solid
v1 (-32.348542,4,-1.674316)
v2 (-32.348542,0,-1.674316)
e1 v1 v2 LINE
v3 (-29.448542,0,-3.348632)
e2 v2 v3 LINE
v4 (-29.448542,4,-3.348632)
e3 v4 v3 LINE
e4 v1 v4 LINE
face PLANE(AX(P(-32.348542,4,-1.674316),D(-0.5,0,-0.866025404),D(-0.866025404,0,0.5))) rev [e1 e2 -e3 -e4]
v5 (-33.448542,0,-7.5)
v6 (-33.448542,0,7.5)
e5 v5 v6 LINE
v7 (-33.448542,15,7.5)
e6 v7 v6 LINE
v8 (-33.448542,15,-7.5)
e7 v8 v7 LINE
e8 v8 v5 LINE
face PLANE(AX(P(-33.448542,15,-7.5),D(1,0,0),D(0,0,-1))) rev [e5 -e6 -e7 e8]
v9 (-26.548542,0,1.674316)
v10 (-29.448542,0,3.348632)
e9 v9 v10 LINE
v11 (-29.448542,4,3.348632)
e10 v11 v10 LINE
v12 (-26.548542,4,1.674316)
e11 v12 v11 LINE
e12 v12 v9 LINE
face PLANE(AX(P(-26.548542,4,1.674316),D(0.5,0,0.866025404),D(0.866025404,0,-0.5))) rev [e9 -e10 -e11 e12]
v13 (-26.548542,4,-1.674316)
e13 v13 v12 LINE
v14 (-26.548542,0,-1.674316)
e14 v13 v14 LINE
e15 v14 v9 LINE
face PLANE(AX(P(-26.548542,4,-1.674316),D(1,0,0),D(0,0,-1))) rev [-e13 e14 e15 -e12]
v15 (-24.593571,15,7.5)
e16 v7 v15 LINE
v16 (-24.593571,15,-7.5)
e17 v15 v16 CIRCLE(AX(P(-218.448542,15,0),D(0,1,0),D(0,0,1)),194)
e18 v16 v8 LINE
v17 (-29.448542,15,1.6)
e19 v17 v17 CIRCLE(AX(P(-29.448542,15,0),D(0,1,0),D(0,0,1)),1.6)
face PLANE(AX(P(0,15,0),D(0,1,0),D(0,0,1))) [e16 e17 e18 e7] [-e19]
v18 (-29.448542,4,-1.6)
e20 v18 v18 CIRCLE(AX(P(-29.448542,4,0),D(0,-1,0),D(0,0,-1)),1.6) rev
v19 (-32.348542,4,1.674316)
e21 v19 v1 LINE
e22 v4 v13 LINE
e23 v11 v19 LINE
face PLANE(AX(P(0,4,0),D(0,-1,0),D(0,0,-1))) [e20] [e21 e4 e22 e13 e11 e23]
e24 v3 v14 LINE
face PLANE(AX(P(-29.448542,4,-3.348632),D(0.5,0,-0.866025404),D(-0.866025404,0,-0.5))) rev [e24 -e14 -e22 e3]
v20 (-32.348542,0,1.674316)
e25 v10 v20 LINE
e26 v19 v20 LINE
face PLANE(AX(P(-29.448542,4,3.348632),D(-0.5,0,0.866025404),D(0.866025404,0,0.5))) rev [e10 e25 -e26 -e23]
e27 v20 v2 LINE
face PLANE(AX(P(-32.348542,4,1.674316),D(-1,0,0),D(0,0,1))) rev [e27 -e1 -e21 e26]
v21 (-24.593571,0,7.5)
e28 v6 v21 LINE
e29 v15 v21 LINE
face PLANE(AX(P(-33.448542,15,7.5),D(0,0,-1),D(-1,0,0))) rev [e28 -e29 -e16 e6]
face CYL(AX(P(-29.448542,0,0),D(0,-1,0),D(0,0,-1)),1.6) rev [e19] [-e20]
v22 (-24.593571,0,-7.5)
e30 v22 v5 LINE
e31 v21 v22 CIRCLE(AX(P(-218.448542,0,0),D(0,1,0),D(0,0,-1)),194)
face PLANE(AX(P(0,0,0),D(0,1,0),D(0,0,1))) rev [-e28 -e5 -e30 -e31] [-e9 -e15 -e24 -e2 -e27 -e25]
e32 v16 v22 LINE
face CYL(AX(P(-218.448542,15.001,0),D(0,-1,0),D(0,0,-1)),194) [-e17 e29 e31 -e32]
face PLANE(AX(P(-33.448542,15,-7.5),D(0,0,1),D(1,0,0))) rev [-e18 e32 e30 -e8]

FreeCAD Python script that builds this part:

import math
import FreeCAD as App
import Part
import Sketcher
Q = App.Units.Quantity

doc = App.newDocument("Part")
params = doc.addObject("Spreadsheet::Sheet", "Params")
for row, (alias, value) in enumerate([
    ("sketch1_height", "15 mm"),
    ("pad1_length", "15 mm"),
    ("sketch2_radius", "194 mm"),
    ("sketch2_height", "15 mm"),
    ("sketch3_diameter", "3.2 mm"),
    ("hole_diameter", "3.2 mm"),
    ("pocket2_length", "4 mm"),
], start=1):
    params.set(f"A{row}", alias)
    params.set(f"B{row}", "=" + value)
    params.setAlias(f"B{row}", alias)

body = doc.addObject("PartDesign::Body", "Body")

# Sketch on XZ plane
sketch1 = body.newObject("Sketcher::SketchObject", "Sketch")
sketch1.AttachmentSupport = (doc.getObject("XZ_Plane"), [""])
sketch1.MapMode = "FlatFace"
sketch1.addGeometry([
    Part.LineSegment(App.Vector(-33, -8, 0), App.Vector(-33, 8, 0)),
    Part.LineSegment(App.Vector(-33, 8, 0), App.Vector(33, 8, 0)),
    Part.LineSegment(App.Vector(33, 8, 0), App.Vector(33, -8, 0)),
    Part.LineSegment(App.Vector(33, -8, 0), App.Vector(-33, -8, 0)),
], False)
sketch1.addConstraint([
    Sketcher.Constraint("Coincident", 0, 2, 1, 1),
    Sketcher.Constraint("Coincident", 1, 2, 2, 1),
    Sketcher.Constraint("Coincident", 2, 2, 3, 1),
    Sketcher.Constraint("Coincident", 3, 2, 0, 1),
    Sketcher.Constraint("Vertical", 0),
    Sketcher.Constraint("Horizontal", 1),
    Sketcher.Constraint("Vertical", 2),
    Sketcher.Constraint("Horizontal", 3),
    Sketcher.Constraint("Symmetric", 0, 2, 2, 2, -1, 1),
    Sketcher.Constraint("DistanceY", 0, 1, 0, 2, 15.0),
    Sketcher.Constraint("DistanceX", 1, 1, 1, 2, 66.897085),
])
sketch1.setExpression("Constraints[9]", "Params.sketch1_height")
pad1 = body.newObject("PartDesign::Pad", "Pad")
pad1.Profile = sketch1
pad1.setExpression("Length", "Params.pad1_length")
pad1.Reversed = True

# Sketch on XZ plane
sketch2 = body.newObject("Sketcher::SketchObject", "Sketch001")
sketch2.AttachmentSupport = (doc.getObject("XZ_Plane"), [""])
sketch2.MapMode = "FlatFace"
sketch2.addGeometry([
    Part.LineSegment(App.Vector(33, 8, 0), App.Vector(-25, 8, 0)),
    Part.ArcOfCircle(Part.Circle(App.Vector(-218, 0, 0), App.Vector(0, 0, 1), 194), math.radians(-2.22), math.radians(2.22)),
    Part.LineSegment(App.Vector(-25, -8, 0), App.Vector(33, -8, 0)),
    Part.LineSegment(App.Vector(33, -8, 0), App.Vector(33, 8, 0)),
], False)
sketch2.addConstraint([
    Sketcher.Constraint("Coincident", 0, 2, 1, 2),
    Sketcher.Constraint("Coincident", 1, 1, 2, 1),
    Sketcher.Constraint("Coincident", 2, 2, 3, 1),
    Sketcher.Constraint("Coincident", 3, 2, 0, 1),
    Sketcher.Constraint("Horizontal", 0),
    Sketcher.Constraint("Horizontal", 2),
    Sketcher.Constraint("Vertical", 3),
    Sketcher.Constraint("Symmetric", 0, 2, 1, 1, -1),
    Sketcher.Constraint("Radius", 1, 194.0),
    Sketcher.Constraint("DistanceY", 3, 1, 3, 2, 15.0),
    Sketcher.Constraint("DistanceX", 0, 2, 0, 1, 58.042113),
    Sketcher.Constraint("DistanceX", 0, 2, -1, 1, 24.593571),
])
sketch2.setExpression("Constraints[8]", "Params.sketch2_radius")
sketch2.setExpression("Constraints[9]", "Params.sketch2_height")
pocket1 = body.newObject("PartDesign::Pocket", "Pocket")
pocket1.Profile = sketch2
pocket1.Type = "UpToFirst"

# Sketch on XZ plane
sketch3 = body.newObject("Sketcher::SketchObject", "Sketch002")
sketch3.AttachmentSupport = (doc.getObject("XZ_Plane"), [""])
sketch3.MapMode = "FlatFace"
sketch3.addGeometry(Part.Circle(App.Vector(-29.4, 0, 0), App.Vector(0, 0, 1), 1.6), False)
sketch3.addConstraint([
    Sketcher.Constraint("PointOnObject", 0, 3, -1),
    Sketcher.Constraint("Diameter", 0, 3.2),
    Sketcher.Constraint("DistanceX", 0, 3, -1, 1, 29.448542),
])
sketch3.setExpression("Constraints[1]", "Params.sketch3_diameter")
doc.recompute()
hole = body.newObject("PartDesign::Hole", "Hole")
hole.Profile = sketch3
hole.ThreadType = "None"
hole.setExpression("Diameter", "Params.hole_diameter")
hole.DepthType = "ThroughAll"

# Sketch on XZ plane
sketch4 = body.newObject("Sketcher::SketchObject", "Sketch003")
sketch4.AttachmentSupport = (doc.getObject("XZ_Plane"), [""])
sketch4.MapMode = "FlatFace"
sketch4.addGeometry([
    Part.LineSegment(App.Vector(-29.4, -3.3, 0), App.Vector(-26.5, -1.7, 0)),  # 0
    Part.LineSegment(App.Vector(-26.5, -1.7, 0), App.Vector(-26.5, 1.7, 0)),  # 1
    Part.LineSegment(App.Vector(-26.5, 1.7, 0), App.Vector(-29.4, 3.3, 0)),  # 2
    Part.LineSegment(App.Vector(-29.4, 3.3, 0), App.Vector(-32.3, 1.7, 0)),  # 3
    Part.LineSegment(App.Vector(-32.3, 1.7, 0), App.Vector(-32.3, -1.7, 0)),  # 4
    Part.LineSegment(App.Vector(-32.3, -1.7, 0), App.Vector(-29.4, -3.3, 0)),  # 5
], False)
sketch4.addConstraint([
    Sketcher.Constraint("Coincident", 0, 2, 1, 1),
    Sketcher.Constraint("Coincident", 1, 2, 2, 1),
    Sketcher.Constraint("Coincident", 2, 2, 3, 1),
    Sketcher.Constraint("Coincident", 3, 2, 4, 1),
    Sketcher.Constraint("Coincident", 4, 2, 5, 1),
    Sketcher.Constraint("Coincident", 5, 2, 0, 1),
    Sketcher.Constraint("Vertical", 1),
    Sketcher.Constraint("Vertical", 4),
    Sketcher.Constraint("Symmetric", 2, 2, 5, 2, -1),
    Sketcher.Constraint("Parallel", 0, 3),
    Sketcher.Constraint("Parallel", 2, 5),
    Sketcher.Constraint("Horizontal", 1, 2, 3, 2),
    Sketcher.Constraint("Horizontal", 0, 2, 4, 2),
    Sketcher.Constraint("Angle", 0, Q("30 deg")),
    Sketcher.Constraint("DistanceX", 2, 2, 1, 2, 2.9),
    Sketcher.Constraint("DistanceY", 1, 1, 1, 2, 3.348632),
    Sketcher.Constraint("DistanceX", 0, 2, -1, 1, 26.548542),
])
pocket2 = body.newObject("PartDesign::Pocket", "Pocket001")
pocket2.Profile = sketch4
pocket2.setExpression("Length", "Params.pocket2_length")

doc.recompute()
